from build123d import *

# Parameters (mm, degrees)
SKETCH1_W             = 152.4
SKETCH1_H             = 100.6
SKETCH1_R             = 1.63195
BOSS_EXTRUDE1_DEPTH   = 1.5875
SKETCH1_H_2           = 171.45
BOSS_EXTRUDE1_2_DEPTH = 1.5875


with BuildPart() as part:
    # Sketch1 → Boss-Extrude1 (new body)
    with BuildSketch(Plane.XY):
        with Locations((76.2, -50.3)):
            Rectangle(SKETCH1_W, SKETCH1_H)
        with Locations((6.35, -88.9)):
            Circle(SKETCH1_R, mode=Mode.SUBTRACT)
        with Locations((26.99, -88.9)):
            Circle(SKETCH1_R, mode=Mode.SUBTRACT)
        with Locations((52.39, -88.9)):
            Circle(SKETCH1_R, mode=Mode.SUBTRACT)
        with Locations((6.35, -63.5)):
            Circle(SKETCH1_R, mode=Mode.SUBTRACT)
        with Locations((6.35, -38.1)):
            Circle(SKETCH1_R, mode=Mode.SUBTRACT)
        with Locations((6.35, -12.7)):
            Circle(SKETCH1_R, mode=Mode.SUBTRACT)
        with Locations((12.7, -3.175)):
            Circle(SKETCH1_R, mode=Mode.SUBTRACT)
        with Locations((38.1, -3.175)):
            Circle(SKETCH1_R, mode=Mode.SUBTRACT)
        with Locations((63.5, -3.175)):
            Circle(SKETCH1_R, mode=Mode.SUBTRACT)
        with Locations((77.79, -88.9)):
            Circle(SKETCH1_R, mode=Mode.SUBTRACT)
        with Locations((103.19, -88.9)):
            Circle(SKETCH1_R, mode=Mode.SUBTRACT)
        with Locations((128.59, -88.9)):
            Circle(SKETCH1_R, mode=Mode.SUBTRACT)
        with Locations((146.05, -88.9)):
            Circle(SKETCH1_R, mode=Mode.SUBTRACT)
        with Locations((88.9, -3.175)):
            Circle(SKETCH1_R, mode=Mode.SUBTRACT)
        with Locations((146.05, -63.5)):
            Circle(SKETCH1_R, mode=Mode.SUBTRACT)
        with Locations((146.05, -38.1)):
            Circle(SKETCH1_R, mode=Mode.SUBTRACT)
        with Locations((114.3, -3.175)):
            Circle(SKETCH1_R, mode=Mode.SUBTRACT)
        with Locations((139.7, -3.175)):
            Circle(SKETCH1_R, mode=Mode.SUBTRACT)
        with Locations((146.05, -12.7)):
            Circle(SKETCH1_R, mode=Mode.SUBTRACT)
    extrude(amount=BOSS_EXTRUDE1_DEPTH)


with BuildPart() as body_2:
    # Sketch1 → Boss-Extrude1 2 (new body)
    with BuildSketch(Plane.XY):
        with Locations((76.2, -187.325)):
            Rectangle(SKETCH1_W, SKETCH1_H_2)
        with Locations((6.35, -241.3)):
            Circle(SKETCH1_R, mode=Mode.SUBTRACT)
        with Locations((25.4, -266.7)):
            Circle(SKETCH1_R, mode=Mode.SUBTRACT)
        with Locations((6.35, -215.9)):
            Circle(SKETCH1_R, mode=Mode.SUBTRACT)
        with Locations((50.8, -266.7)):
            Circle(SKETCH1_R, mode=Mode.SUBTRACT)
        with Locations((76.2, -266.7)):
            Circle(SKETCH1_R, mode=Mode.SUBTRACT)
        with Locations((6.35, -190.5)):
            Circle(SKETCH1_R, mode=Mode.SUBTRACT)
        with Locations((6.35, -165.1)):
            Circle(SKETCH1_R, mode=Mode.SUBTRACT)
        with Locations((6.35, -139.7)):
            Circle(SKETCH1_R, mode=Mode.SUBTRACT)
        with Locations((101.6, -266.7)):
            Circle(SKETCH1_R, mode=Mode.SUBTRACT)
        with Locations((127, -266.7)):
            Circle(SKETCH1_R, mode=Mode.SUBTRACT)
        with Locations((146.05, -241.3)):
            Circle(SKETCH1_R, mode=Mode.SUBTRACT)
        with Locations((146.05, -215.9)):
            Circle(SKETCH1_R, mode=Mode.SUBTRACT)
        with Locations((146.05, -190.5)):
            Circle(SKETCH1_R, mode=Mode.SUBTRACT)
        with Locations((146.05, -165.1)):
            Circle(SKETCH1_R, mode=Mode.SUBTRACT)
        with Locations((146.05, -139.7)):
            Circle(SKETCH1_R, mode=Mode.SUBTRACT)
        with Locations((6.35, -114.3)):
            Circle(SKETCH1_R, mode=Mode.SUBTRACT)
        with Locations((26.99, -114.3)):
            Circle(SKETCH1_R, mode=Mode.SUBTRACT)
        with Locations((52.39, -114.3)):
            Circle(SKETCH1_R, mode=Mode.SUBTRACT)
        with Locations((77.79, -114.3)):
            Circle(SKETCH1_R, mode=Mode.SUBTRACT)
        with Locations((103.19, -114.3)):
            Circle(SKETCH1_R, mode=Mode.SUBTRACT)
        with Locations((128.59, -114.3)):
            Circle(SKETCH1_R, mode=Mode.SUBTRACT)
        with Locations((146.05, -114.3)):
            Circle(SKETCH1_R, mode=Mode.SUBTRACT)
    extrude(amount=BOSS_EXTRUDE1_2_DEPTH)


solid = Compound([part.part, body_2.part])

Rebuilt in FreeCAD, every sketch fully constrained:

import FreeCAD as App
import Part
import Sketcher
Q = App.Units.Quantity

doc = App.newDocument("Part")
body = doc.addObject("PartDesign::Body", "Body")

sketch1 = body.newObject("Sketcher::SketchObject", "Sketch")
sketch1.AttachmentSupport = (doc.getObject("XY_Plane"), [""])
sketch1.MapMode = "FlatFace"
sketch1.addGeometry([
    Part.LineSegment(App.Vector(0, 0, 0), App.Vector(0, -100.6, 0)),
    Part.LineSegment(App.Vector(0, -100.6, 0), App.Vector(152.4, -100.6, 0)),
    Part.LineSegment(App.Vector(152.4, -100.6, 0), App.Vector(152.4, 0, 0)),
    Part.LineSegment(App.Vector(152.4, 0, 0), App.Vector(0, 0, 0)),
    Part.Circle(App.Vector(6.35, -88.9, 0), App.Vector(0, 0, 1), 1.63195),
    Part.Circle(App.Vector(26.99, -88.9, 0), App.Vector(0, 0, 1), 1.63195),
    Part.Circle(App.Vector(52.39, -88.9, 0), App.Vector(0, 0, 1), 1.63195),
    Part.Circle(App.Vector(6.35, -63.5, 0), App.Vector(0, 0, 1), 1.63195),
    Part.Circle(App.Vector(77.79, -88.9, 0), App.Vector(0, 0, 1), 1.63195),
    Part.Circle(App.Vector(103.19, -88.9, 0), App.Vector(0, 0, 1), 1.63195),
    Part.Circle(App.Vector(128.59, -88.9, 0), App.Vector(0, 0, 1), 1.63195),
    Part.Circle(App.Vector(146.05, -88.9, 0), App.Vector(0, 0, 1), 1.63195),
    Part.Circle(App.Vector(146.05, -63.5, 0), App.Vector(0, 0, 1), 1.63195),
    Part.Circle(App.Vector(6.35, -38.1, 0), App.Vector(0, 0, 1), 1.63195),
    Part.Circle(App.Vector(6.35, -12.7, 0), App.Vector(0, 0, 1), 1.63195),
    Part.Circle(App.Vector(12.7, -3.175, 0), App.Vector(0, 0, 1), 1.63195),
    Part.Circle(App.Vector(38.1, -3.175, 0), App.Vector(0, 0, 1), 1.63195),
    Part.Circle(App.Vector(63.5, -3.175, 0), App.Vector(0, 0, 1), 1.63195),
    Part.Circle(App.Vector(146.05, -38.1, 0), App.Vector(0, 0, 1), 1.63195),
    Part.Circle(App.Vector(88.9, -3.175, 0), App.Vector(0, 0, 1), 1.63195),
    Part.Circle(App.Vector(146.05, -12.7, 0), App.Vector(0, 0, 1), 1.63195),
    Part.Circle(App.Vector(114.3, -3.175, 0), App.Vector(0, 0, 1), 1.63195),
    Part.Circle(App.Vector(139.7, -3.175, 0), App.Vector(0, 0, 1), 1.63195),
], False)
sketch1.addConstraint([
    Sketcher.Constraint("Coincident", 0, 2, 1, 1),
    Sketcher.Constraint("Coincident", 1, 2, 2, 1),
    Sketcher.Constraint("Coincident", 2, 2, 3, 1),
    Sketcher.Constraint("Coincident", 3, 2, 0, 1),
    Sketcher.Constraint("Vertical", 0),
    Sketcher.Constraint("Horizontal", 1),
    Sketcher.Constraint("Vertical", 2),
    Sketcher.Constraint("Horizontal", 3),
    Sketcher.Constraint("Coincident", 3, 2, -1, 1),
    Sketcher.Constraint("Equal", 4, 5),
    Sketcher.Constraint("Equal", 5, 6),
    Sketcher.Constraint("Equal", 6, 7),
    Sketcher.Constraint("Equal", 7, 8),
    Sketcher.Constraint("Equal", 8, 9),
    Sketcher.Constraint("Equal", 9, 10),
    Sketcher.Constraint("Equal", 10, 11),
    Sketcher.Constraint("Equal", 11, 12),
    Sketcher.Constraint("Equal", 12, 13),
    Sketcher.Constraint("Equal", 13, 14),
    Sketcher.Constraint("Equal", 14, 15),
    Sketcher.Constraint("Equal", 15, 16),
    Sketcher.Constraint("Equal", 16, 17),
    Sketcher.Constraint("Equal", 17, 18),
    Sketcher.Constraint("Equal", 18, 19),
    Sketcher.Constraint("Equal", 19, 20),
    Sketcher.Constraint("Equal", 20, 21),
    Sketcher.Constraint("Equal", 21, 22),
    Sketcher.Constraint("Horizontal", 4, 3, 5, 3),
    Sketcher.Constraint("Horizontal", 5, 3, 6, 3),
    Sketcher.Constraint("Horizontal", 6, 3, 8, 3),
    Sketcher.Constraint("Horizontal", 8, 3, 9, 3),
    Sketcher.Constraint("Horizontal", 9, 3, 10, 3),
    Sketcher.Constraint("Horizontal", 10, 3, 11, 3),
    Sketcher.Constraint("Horizontal", 7, 3, 12, 3),
    Sketcher.Constraint("Horizontal", 15, 3, 16, 3),
    Sketcher.Constraint("Horizontal", 16, 3, 17, 3),
    Sketcher.Constraint("Horizontal", 13, 3, 18, 3),
    Sketcher.Constraint("Horizontal", 17, 3, 19, 3),
    Sketcher.Constraint("Horizontal", 14, 3, 20, 3),
    Sketcher.Constraint("Horizontal", 19, 3, 21, 3),
    Sketcher.Constraint("Horizontal", 21, 3, 22, 3),
    Sketcher.Constraint("Vertical", 4, 3, 7, 3),
    Sketcher.Constraint("Vertical", 11, 3, 12, 3),
    Sketcher.Constraint("Vertical", 7, 3, 13, 3),
    Sketcher.Constraint("Vertical", 13, 3, 14, 3),
    Sketcher.Constraint("Vertical", 12, 3, 18, 3),
    Sketcher.Constraint("Vertical", 18, 3, 20, 3),
    Sketcher.Constraint("DistanceX", 1, 1, 1, 2, Q("6 in")),
    Sketcher.Constraint("DistanceX", 5, 3, 6, 3, Q("1 in")),
    Sketcher.Constraint("DistanceY", 4, 3, 7, 3, Q("1 in")),
    Sketcher.Constraint("DistanceX", 6, 3, 8, 3, Q("1 in")),
    Sketcher.Constraint("DistanceX", 8, 3, 9, 3, Q("1 in")),
    Sketcher.Constraint("DistanceX", 9, 3, 10, 3, Q("1 in")),
    Sketcher.Constraint("DistanceY", 7, 3, 13, 3, Q("1 in")),
    Sketcher.Constraint("DistanceY", 13, 3, 14, 3, Q("1 in")),
    Sketcher.Constraint("DistanceX", 15, 3, 16, 3, Q("1 in")),
    Sketcher.Constraint("DistanceX", 16, 3, 17, 3, Q("1 in")),
    Sketcher.Constraint("DistanceX", 17, 3, 19, 3, Q("1 in")),
    Sketcher.Constraint("DistanceX", 19, 3, 21, 3, Q("1 in")),
    Sketcher.Constraint("DistanceX", 21, 3, 22, 3, Q("1 in")),
    Sketcher.Constraint("Diameter", 4, Q("0.1285 in")),
    Sketcher.Constraint("DistanceY", 4, 3, -1, 1, Q("3.5 in")),
    Sketcher.Constraint("DistanceX", -1, 1, 15, 3, Q("0.5 in")),
    Sketcher.Constraint("DistanceX", -1, 1, 4, 3, Q("0.25 in")),
    Sketcher.Constraint("DistanceX", -1, 1, 11, 3, Q("5.75 in")),
    Sketcher.Constraint("DistanceY", 15, 3, -1, 1, Q("0.125 in")),
    Sketcher.Constraint("DistanceY", 0, 2, 0, 1, Q("100.6 mm")),
    Sketcher.Constraint("DistanceX", -1, 1, 5, 3, Q("26.99 mm")),
])
pad1 = body.newObject("PartDesign::Pad", "Pad")
pad1.Profile = sketch1
pad1.Length = Q("0.0625 in")
body2 = doc.addObject("PartDesign::Body", "Body001")

sketch2 = body2.newObject("Sketcher::SketchObject", "Sketch001")
sketch2.AttachmentSupport = (doc.getObject("XY_Plane001"), [""])
sketch2.MapMode = "FlatFace"
sketch2.addGeometry([
    Part.LineSegment(App.Vector(0, -101.6, 0), App.Vector(0, -273.05, 0)),
    Part.LineSegment(App.Vector(0, -273.05, 0), App.Vector(152.4, -273.05, 0)),
    Part.LineSegment(App.Vector(152.4, -273.05, 0), App.Vector(152.4, -101.6, 0)),
    Part.LineSegment(App.Vector(152.4, -101.6, 0), App.Vector(0, -101.6, 0)),
    Part.Circle(App.Vector(25.4, -266.7, 0), App.Vector(0, 0, 1), 1.63195),
    Part.Circle(App.Vector(6.35, -241.3, 0), App.Vector(0, 0, 1), 1.63195),
    Part.Circle(App.Vector(50.8, -266.7, 0), App.Vector(0, 0, 1), 1.63195),
    Part.Circle(App.Vector(76.2, -266.7, 0), App.Vector(0, 0, 1), 1.63195),
    Part.Circle(App.Vector(6.35, -215.9, 0), App.Vector(0, 0, 1), 1.63195),
    Part.Circle(App.Vector(6.35, -190.5, 0), App.Vector(0, 0, 1), 1.63195),
    Part.Circle(App.Vector(101.6, -266.7, 0), App.Vector(0, 0, 1), 1.63195),
    Part.Circle(App.Vector(127, -266.7, 0), App.Vector(0, 0, 1), 1.63195),
    Part.Circle(App.Vector(146.05, -241.3, 0), App.Vector(0, 0, 1), 1.63195),
    Part.Circle(App.Vector(146.05, -215.9, 0), App.Vector(0, 0, 1), 1.63195),
    Part.Circle(App.Vector(146.05, -190.5, 0), App.Vector(0, 0, 1), 1.63195),
    Part.Circle(App.Vector(6.35, -165.1, 0), App.Vector(0, 0, 1), 1.63195),
    Part.Circle(App.Vector(6.35, -139.7, 0), App.Vector(0, 0, 1), 1.63195),
    Part.Circle(App.Vector(6.35, -114.3, 0), App.Vector(0, 0, 1), 1.63195),
    Part.Circle(App.Vector(26.99, -114.3, 0), App.Vector(0, 0, 1), 1.63195),
    Part.Circle(App.Vector(52.39, -114.3, 0), App.Vector(0, 0, 1), 1.63195),
    Part.Circle(App.Vector(146.05, -165.1, 0), App.Vector(0, 0, 1), 1.63195),
    Part.Circle(App.Vector(77.79, -114.3, 0), App.Vector(0, 0, 1), 1.63195),
    Part.Circle(App.Vector(103.19, -114.3, 0), App.Vector(0, 0, 1), 1.63195),
    Part.Circle(App.Vector(146.05, -139.7, 0), App.Vector(0, 0, 1), 1.63195),
    Part.Circle(App.Vector(128.59, -114.3, 0), App.Vector(0, 0, 1), 1.63195),
    Part.Circle(App.Vector(146.05, -114.3, 0), App.Vector(0, 0, 1), 1.63195),
], False)
sketch2.addConstraint([
    Sketcher.Constraint("Coincident", 0, 2, 1, 1),
    Sketcher.Constraint("Coincident", 1, 2, 2, 1),
    Sketcher.Constraint("Coincident", 2, 2, 3, 1),
    Sketcher.Constraint("Coincident", 3, 2, 0, 1),
    Sketcher.Constraint("Vertical", 0),
    Sketcher.Constraint("Horizontal", 1),
    Sketcher.Constraint("Vertical", 2),
    Sketcher.Constraint("Horizontal", 3),
    Sketcher.Constraint("Equal", 4, 5),
    Sketcher.Constraint("Equal", 5, 6),
    Sketcher.Constraint("Equal", 6, 7),
    Sketcher.Constraint("Equal", 7, 8),
    Sketcher.Constraint("Equal", 8, 9),
    Sketcher.Constraint("Equal", 9, 10),
    Sketcher.Constraint("Equal", 10, 11),
    Sketcher.Constraint("Equal", 11, 12),
    Sketcher.Constraint("Equal", 12, 13),
    Sketcher.Constraint("Equal", 13, 14),
    Sketcher.Constraint("Equal", 14, 15),
    Sketcher.Constraint("Equal", 15, 16),
    Sketcher.Constraint("Equal", 16, 17),
    Sketcher.Constraint("Equal", 17, 18),
    Sketcher.Constraint("Equal", 18, 19),
    Sketcher.Constraint("Equal", 19, 20),
    Sketcher.Constraint("Equal", 20, 21),
    Sketcher.Constraint("Equal", 21, 22),
    Sketcher.Constraint("Equal", 22, 23),
    Sketcher.Constraint("Equal", 23, 24),
    Sketcher.Constraint("Equal", 24, 25),
    Sketcher.Constraint("PointOnObject", 0, 2, -2),
    Sketcher.Constraint("Horizontal", 4, 3, 6, 3),
    Sketcher.Constraint("Horizontal", 6, 3, 7, 3),
    Sketcher.Constraint("Horizontal", 7, 3, 10, 3),
    Sketcher.Constraint("Horizontal", 10, 3, 11, 3),
    Sketcher.Constraint("Horizontal", 5, 3, 12, 3),
    Sketcher.Constraint("Horizontal", 8, 3, 13, 3),
    Sketcher.Constraint("Horizontal", 9, 3, 14, 3),
    Sketcher.Constraint("Horizontal", 17, 3, 18, 3),
    Sketcher.Constraint("Horizontal", 18, 3, 19, 3),
    Sketcher.Constraint("Horizontal", 15, 3, 20, 3),
    Sketcher.Constraint("Horizontal", 19, 3, 21, 3),
    Sketcher.Constraint("Horizontal", 21, 3, 22, 3),
    Sketcher.Constraint("Horizontal", 16, 3, 23, 3),
    Sketcher.Constraint("Horizontal", 22, 3, 24, 3),
    Sketcher.Constraint("Horizontal", 24, 3, 25, 3),
    Sketcher.Constraint("Vertical", 5, 3, 8, 3),
    Sketcher.Constraint("Vertical", 8, 3, 9, 3),
    Sketcher.Constraint("Vertical", 12, 3, 13, 3),
    Sketcher.Constraint("Vertical", 13, 3, 14, 3),
    Sketcher.Constraint("Vertical", 9, 3, 15, 3),
    Sketcher.Constraint("Vertical", 15, 3, 16, 3),
    Sketcher.Constraint("Vertical", 16, 3, 17, 3),
    Sketcher.Constraint("Vertical", 14, 3, 20, 3),
    Sketcher.Constraint("Vertical", 20, 3, 23, 3),
    Sketcher.Constraint("Vertical", 23, 3, 25, 3),
    Sketcher.Constraint("DistanceX", 1, 1, 1, 2, Q("6 in")),
    Sketcher.Constraint("DistanceX", -1, 1, 4, 3, Q("1 in")),
    Sketcher.Constraint("DistanceX", -1, 1, 6, 3, Q("2 in")),
    Sketcher.Constraint("DistanceX", -1, 1, 7, 3, Q("3 in")),
    Sketcher.Constraint("DistanceX", -1, 1, 10, 3, Q("4 in")),
    Sketcher.Constraint("DistanceX", -1, 1, 11, 3, Q("5 in")),
    Sketcher.Constraint("DistanceY", 2, 2, -1, 1, Q("4 in")),
    Sketcher.Constraint("DistanceY", 4, 3, 5, 3, Q("1 in")),
    Sketcher.Constraint("DistanceY", 5, 3, 8, 3, Q("1 in")),
    Sketcher.Constraint("DistanceY", 8, 3, 9, 3, Q("1 in")),
    Sketcher.Constraint("DistanceY", 9, 3, 15, 3, Q("1 in")),
    Sketcher.Constraint("DistanceY", 15, 3, 16, 3, Q("1 in")),
    Sketcher.Constraint("DistanceY", 16, 3, 17, 3, Q("1 in")),
    Sketcher.Constraint("DistanceX", 18, 3, 19, 3, Q("1 in")),
    Sketcher.Constraint("DistanceX", 19, 3, 21, 3, Q("1 in")),
    Sketcher.Constraint("DistanceX", 21, 3, 22, 3, Q("1 in")),
    Sketcher.Constraint("DistanceX", 22, 3, 24, 3, Q("1 in")),
    Sketcher.Constraint("Diameter", 4, Q("0.1285 in")),
    Sketcher.Constraint("DistanceY", 0, 2, 0, 1, Q("6.75 in")),
    Sketcher.Constraint("DistanceY", 4, 3, -1, 1, Q("10.5 in")),
    Sketcher.Constraint("DistanceX", -1, 1, 5, 3, Q("0.25 in")),
    Sketcher.Constraint("DistanceX", -1, 1, 12, 3, Q("5.75 in")),
    Sketcher.Constraint("DistanceX", -1, 1, 18, 3, Q("26.99 mm")),
])
pad2 = body2.newObject("PartDesign::Pad", "Pad001")
pad2.Profile = sketch2
pad2.Length = Q("0.0625 in")

doc.recompute()
